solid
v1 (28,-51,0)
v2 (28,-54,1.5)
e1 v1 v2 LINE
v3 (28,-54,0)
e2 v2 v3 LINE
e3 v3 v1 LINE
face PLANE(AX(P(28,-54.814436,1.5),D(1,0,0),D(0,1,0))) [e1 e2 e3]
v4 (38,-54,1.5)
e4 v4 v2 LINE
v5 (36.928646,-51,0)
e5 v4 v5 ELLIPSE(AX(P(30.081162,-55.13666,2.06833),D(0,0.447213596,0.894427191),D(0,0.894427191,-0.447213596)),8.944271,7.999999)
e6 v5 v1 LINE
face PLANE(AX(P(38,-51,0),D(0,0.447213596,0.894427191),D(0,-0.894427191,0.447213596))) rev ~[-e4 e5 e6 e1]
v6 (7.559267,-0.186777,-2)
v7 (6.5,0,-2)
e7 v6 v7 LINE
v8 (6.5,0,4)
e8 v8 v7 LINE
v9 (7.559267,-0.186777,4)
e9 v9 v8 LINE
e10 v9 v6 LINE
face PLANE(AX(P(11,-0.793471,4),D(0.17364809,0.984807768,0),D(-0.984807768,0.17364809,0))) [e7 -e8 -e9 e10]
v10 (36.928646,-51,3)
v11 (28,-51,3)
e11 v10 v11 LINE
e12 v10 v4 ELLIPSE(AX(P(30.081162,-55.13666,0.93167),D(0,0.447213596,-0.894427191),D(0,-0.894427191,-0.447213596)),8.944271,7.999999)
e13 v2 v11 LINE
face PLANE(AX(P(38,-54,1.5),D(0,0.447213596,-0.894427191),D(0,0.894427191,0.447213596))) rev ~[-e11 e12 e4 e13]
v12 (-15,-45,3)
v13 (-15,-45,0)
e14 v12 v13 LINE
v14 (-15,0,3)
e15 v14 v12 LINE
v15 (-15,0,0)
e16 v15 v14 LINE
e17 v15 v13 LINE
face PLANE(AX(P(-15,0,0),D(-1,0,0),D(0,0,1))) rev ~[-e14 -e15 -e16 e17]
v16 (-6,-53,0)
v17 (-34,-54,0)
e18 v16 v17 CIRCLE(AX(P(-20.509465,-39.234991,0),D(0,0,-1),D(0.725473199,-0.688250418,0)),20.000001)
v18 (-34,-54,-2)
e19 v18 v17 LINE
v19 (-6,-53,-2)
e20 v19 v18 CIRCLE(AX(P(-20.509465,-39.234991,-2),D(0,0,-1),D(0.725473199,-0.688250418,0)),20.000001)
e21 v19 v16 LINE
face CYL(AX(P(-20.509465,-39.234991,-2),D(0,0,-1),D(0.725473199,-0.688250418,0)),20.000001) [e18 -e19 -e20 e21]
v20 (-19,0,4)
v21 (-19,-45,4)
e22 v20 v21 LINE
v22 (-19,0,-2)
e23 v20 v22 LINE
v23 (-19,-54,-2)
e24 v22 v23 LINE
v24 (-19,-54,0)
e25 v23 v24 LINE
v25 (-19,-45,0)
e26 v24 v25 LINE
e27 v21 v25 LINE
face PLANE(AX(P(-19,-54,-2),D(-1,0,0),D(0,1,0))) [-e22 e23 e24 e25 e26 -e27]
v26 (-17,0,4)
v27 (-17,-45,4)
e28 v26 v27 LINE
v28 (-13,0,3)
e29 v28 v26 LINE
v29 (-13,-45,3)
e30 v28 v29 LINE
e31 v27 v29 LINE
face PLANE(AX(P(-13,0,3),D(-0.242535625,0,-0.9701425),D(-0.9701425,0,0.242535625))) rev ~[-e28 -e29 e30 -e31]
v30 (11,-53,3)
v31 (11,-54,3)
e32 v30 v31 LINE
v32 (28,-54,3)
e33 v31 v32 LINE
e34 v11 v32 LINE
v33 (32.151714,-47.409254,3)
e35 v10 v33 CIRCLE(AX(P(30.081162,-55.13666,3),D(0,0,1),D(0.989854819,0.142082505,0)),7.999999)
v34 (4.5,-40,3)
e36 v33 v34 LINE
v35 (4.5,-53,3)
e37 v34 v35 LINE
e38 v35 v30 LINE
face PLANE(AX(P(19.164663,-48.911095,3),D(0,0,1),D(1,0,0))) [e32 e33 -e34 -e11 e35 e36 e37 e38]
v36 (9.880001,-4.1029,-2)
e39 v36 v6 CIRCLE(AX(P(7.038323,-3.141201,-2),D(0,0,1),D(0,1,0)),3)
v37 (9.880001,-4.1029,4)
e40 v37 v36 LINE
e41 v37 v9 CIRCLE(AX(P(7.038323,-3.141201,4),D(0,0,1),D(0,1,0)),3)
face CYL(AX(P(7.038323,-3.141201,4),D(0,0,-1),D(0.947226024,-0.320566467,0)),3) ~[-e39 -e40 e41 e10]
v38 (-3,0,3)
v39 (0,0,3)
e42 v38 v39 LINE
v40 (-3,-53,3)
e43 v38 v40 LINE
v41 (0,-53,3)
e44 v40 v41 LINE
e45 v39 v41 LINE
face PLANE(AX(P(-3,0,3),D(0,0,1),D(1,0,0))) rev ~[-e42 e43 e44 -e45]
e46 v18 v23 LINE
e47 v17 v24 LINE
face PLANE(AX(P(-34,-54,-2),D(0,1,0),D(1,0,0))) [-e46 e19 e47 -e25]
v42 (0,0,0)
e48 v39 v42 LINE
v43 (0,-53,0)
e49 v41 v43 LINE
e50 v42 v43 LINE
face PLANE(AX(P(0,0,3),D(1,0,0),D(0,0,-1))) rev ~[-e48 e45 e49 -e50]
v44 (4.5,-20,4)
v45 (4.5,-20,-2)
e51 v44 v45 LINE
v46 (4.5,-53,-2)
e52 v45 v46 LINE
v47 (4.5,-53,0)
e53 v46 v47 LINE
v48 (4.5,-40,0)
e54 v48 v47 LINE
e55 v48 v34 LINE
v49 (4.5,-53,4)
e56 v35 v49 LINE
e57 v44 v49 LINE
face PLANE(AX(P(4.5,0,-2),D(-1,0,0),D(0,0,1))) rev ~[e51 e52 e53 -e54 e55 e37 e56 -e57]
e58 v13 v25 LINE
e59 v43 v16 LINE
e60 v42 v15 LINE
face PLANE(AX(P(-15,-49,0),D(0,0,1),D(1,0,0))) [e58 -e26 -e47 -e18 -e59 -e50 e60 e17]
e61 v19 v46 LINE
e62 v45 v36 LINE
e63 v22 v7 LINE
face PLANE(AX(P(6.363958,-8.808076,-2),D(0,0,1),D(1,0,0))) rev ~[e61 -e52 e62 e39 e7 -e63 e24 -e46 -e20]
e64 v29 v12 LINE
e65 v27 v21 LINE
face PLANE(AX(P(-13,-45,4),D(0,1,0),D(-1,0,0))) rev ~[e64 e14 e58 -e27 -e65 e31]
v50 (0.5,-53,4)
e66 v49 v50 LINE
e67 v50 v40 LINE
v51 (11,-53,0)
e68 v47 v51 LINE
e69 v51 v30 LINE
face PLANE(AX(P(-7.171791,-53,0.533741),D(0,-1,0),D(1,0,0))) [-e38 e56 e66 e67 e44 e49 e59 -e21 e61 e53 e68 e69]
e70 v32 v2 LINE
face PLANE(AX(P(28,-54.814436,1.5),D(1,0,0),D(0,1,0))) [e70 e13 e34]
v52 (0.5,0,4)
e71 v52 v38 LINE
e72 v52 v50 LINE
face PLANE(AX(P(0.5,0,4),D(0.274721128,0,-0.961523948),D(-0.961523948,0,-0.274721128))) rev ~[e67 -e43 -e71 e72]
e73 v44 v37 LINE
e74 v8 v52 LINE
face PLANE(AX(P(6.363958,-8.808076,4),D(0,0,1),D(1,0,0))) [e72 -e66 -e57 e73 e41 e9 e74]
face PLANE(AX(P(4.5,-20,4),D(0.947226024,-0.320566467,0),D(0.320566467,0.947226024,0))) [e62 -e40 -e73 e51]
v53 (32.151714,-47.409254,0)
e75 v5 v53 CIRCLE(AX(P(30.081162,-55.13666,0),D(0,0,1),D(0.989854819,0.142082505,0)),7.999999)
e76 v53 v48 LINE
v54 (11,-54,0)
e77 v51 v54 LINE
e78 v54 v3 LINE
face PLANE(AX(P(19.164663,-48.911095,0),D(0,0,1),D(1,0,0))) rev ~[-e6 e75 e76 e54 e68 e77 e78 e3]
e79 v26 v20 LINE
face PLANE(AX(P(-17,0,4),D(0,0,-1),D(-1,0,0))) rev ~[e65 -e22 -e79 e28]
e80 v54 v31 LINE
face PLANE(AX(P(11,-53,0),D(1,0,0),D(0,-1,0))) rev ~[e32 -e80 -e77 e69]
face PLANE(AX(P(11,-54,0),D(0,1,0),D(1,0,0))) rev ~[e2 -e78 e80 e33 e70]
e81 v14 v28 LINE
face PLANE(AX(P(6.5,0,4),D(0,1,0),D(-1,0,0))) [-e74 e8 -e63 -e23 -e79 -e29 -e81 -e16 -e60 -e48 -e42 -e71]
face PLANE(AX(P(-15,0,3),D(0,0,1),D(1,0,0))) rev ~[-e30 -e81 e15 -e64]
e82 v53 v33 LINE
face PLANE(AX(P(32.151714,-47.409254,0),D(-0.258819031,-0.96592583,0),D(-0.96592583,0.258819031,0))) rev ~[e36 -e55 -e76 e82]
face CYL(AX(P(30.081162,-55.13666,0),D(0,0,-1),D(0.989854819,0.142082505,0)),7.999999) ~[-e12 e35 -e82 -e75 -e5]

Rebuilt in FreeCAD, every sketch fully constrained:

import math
import FreeCAD as App
import Part
import Sketcher

V = App.Vector
Q = App.Units.Quantity


def edges_at(feature, points):
    """Names of the edges that pass closest to the given points."""
    edges = feature.Shape.Edges
    near = lambda p: min(range(len(edges)), key=lambda i: edges[i].distToShape(Part.Vertex(*p))[0])
    return sorted({f"Edge{near(p) + 1}" for p in points})

doc = App.newDocument("Part")
body = doc.addObject("PartDesign::Body", "Body")

sketch1 = body.newObject("Sketcher::SketchObject", "Sketch")
sketch1.AttachmentSupport = (doc.getObject("XZ_Plane"), [""])
sketch1.MapMode = "FlatFace"
sketch1.addGeometry([
    Part.LineSegment(V(0, 3, 0), V(0, 0, 0)),
    Part.LineSegment(V(0, 0, 0), V(-15, 0, 0)),
    Part.LineSegment(V(-15, 0, 0), V(-15, 3, 0)),
    Part.LineSegment(V(-15, 3, 0), V(-13, 3, 0)),
    Part.LineSegment(V(-13, 3, 0), V(-17, 4, 0)),
    Part.LineSegment(V(-17, 4, 0), V(-19, 4, 0)),
    Part.LineSegment(V(-19, 4, 0), V(-19, -2, 0)),
    Part.LineSegment(V(-19, -2, 0), V(4.5, -2, 0)),
    Part.LineSegment(V(4.5, -2, 0), V(4.5, 4, 0)),
    Part.LineSegment(V(4.5, 4, 0), V(0.5, 4, 0)),
    Part.LineSegment(V(0.5, 4, 0), V(-3, 3, 0)),
    Part.LineSegment(V(-3, 3, 0), V(0, 3, 0)),
], False)
sketch1.addConstraint([
    Sketcher.Constraint("Coincident", 0, 2, 1, 1),
    Sketcher.Constraint("Coincident", 1, 2, 2, 1),
    Sketcher.Constraint("Coincident", 2, 2, 3, 1),
    Sketcher.Constraint("Coincident", 3, 2, 4, 1),
    Sketcher.Constraint("Coincident", 4, 2, 5, 1),
    Sketcher.Constraint("Coincident", 5, 2, 6, 1),
    Sketcher.Constraint("Coincident", 6, 2, 7, 1),
    Sketcher.Constraint("Coincident", 7, 2, 8, 1),
    Sketcher.Constraint("Coincident", 8, 2, 9, 1),
    Sketcher.Constraint("Coincident", 9, 2, 10, 1),
    Sketcher.Constraint("Coincident", 10, 2, 11, 1),
    Sketcher.Constraint("Coincident", 11, 2, 0, 1),
    Sketcher.Constraint("Vertical", 0),
    Sketcher.Constraint("Horizontal", 1),
    Sketcher.Constraint("Vertical", 2),
    Sketcher.Constraint("Horizontal", 3),
    Sketcher.Constraint("Horizontal", 5),
    Sketcher.Constraint("Vertical", 6),
    Sketcher.Constraint("Horizontal", 7),
    Sketcher.Constraint("Vertical", 8),
    Sketcher.Constraint("Horizontal", 9),
    Sketcher.Constraint("Horizontal", 11),
    Sketcher.Constraint("Coincident", 0, 2, -1, 1),
    Sketcher.Constraint("Horizontal", 5, 2, 8, 2),
    Sketcher.Constraint("Horizontal", 3, 2, 10, 2),
    Sketcher.Constraint("Equal", 3, 5),
    Sketcher.Constraint("Equal", 11, 0),
    Sketcher.Constraint("DistanceX", 1, 2, 1, 1, 15.0),
    Sketcher.Constraint("DistanceX", 3, 1, 3, 2, 2.0),
    Sketcher.Constraint("DistanceX", 9, 2, 9, 1, 4.0),
    Sketcher.Constraint("DistanceX", 11, 1, 11, 2, 3.0),
    Sketcher.Constraint("DistanceY", 6, 2, 6, 1, 6.0),
    Sketcher.Constraint("DistanceX", 7, 1, 7, 2, 23.5),
    Sketcher.Constraint("DistanceX", 4, 2, -1, 1, 17.0),
    Sketcher.Constraint("DistanceY", -1, 1, 4, 2, 4.0),
])
pad1 = body.newObject("PartDesign::Pad", "Pad")
pad1.Profile = sketch1
pad1.Length = 53

sketch2 = body.newObject("Sketcher::SketchObject", "Sketch001")
sketch2.AttachmentSupport = (doc.getObject("XY_Plane"), [""])
sketch2.MapMode = "FlatFace"
sketch2.addGeometry([
    Part.LineSegment(V(32.151714, -47.409254, 0), V(4.5, -40, 0)),
    Part.LineSegment(V(4.5, -40, 0), V(4.5, -53, 0)),
    Part.LineSegment(V(4.5, -53, 0), V(11, -53, 0)),
    Part.LineSegment(V(11, -53, 0), V(11, -54, 0)),
    Part.LineSegment(V(11, -54, 0), V(38, -54, 0)),
    Part.ArcOfCircle(Part.Circle(V(30.081162, -55.13666, 0), V(0, 0, 1), 7.999999), math.radians(8.16837), math.radians(75.000003)),
], False)
sketch2.addConstraint([
    Sketcher.Constraint("Coincident", 0, 2, 1, 1),
    Sketcher.Constraint("Coincident", 1, 2, 2, 1),
    Sketcher.Constraint("Coincident", 2, 2, 3, 1),
    Sketcher.Constraint("Coincident", 3, 2, 4, 1),
    Sketcher.Constraint("Coincident", 4, 2, 5, 1),
    Sketcher.Constraint("Tangent", 5, 2, 0, 1),
    Sketcher.Constraint("Vertical", 1),
    Sketcher.Constraint("Horizontal", 2),
    Sketcher.Constraint("Vertical", 3),
    Sketcher.Constraint("Horizontal", 4),
    Sketcher.Constraint("Radius", 5, 7.999999),
    Sketcher.Constraint("DistanceX", 4, 1, 4, 2, 27.0),
    Sketcher.Constraint("DistanceY", 1, 2, 1, 1, 13.0),
    Sketcher.Constraint("DistanceY", 3, 2, 3, 1, 1.0),
    Sketcher.Constraint("Angle", 0, Q("165.000001 deg")),
    Sketcher.Constraint("DistanceX", 2, 1, 2, 2, 6.5),
    Sketcher.Constraint("DistanceY", 0, 2, -1, 1, 40.0),
    Sketcher.Constraint("DistanceX", -1, 1, 2, 2, 11.0),
])
pad2 = body.newObject("PartDesign::Pad", "Pad001")
pad2.Profile = sketch2
pad2.Length = 3

sketch3 = body.newObject("Sketcher::SketchObject", "Sketch002")
sketch3.AttachmentSupport = (doc.getObject("YZ_Plane"), [""])
sketch3.MapMode = "FlatFace"
sketch3.AttachmentOffset = App.Placement(V(0, 0, 38), App.Rotation())
sketch3.addGeometry([
    Part.LineSegment(V(-59, 3, 0), V(-59, 0, 0)),
    Part.LineSegment(V(-59, 0, 0), V(-51, 0, 0)),
    Part.LineSegment(V(-51, 0, 0), V(-54, 1.5, 0)),
    Part.LineSegment(V(-54, 1.5, 0), V(-51, 3, 0)),
    Part.LineSegment(V(-51, 3, 0), V(-59, 3, 0)),
], False)
sketch3.addConstraint([
    Sketcher.Constraint("Coincident", 0, 2, 1, 1),
    Sketcher.Constraint("Coincident", 1, 2, 2, 1),
    Sketcher.Constraint("Coincident", 2, 2, 3, 1),
    Sketcher.Constraint("Coincident", 3, 2, 4, 1),
    Sketcher.Constraint("Coincident", 4, 2, 0, 1),
    Sketcher.Constraint("Vertical", 0),
    Sketcher.Constraint("Horizontal", 1),
    Sketcher.Constraint("Horizontal", 4),
    Sketcher.Constraint("PointOnObject", 0, 2, -1),
    Sketcher.Constraint("Vertical", 1, 2, 3, 2),
    Sketcher.Constraint("Equal", 2, 3),
    Sketcher.Constraint("DistanceX", 1, 1, 1, 2, 8.0),
    Sketcher.Constraint("DistanceY", 0, 2, 0, 1, 3.0),
    Sketcher.Constraint("DistanceX", 0, 2, -1, 1, 59.0),
    Sketcher.Constraint("DistanceX", 2, 2, -1, 1, 54.0),
])
pocket1 = body.newObject("PartDesign::Pocket", "Pocket")
pocket1.Profile = sketch3
pocket1.Length = 10

sketch4 = body.newObject("Sketcher::SketchObject", "Sketch003")
sketch4.AttachmentSupport = (doc.getObject("XY_Plane"), [""])
sketch4.MapMode = "FlatFace"
sketch4.AttachmentOffset = App.Placement(V(0, 0, -2), App.Rotation())
sketch4.addGeometry([
    Part.LineSegment(V(-19, -54, 0), V(-19, -53, 0)),
    Part.LineSegment(V(-19, -53, 0), V(-6, -53, 0)),
    Part.ArcOfCircle(Part.Circle(V(-20.509465, -39.234991, 0), V(0, 0, 1), 20.000001), math.radians(-132.41741), math.radians(-43.491773)),
    Part.LineSegment(V(-34, -54, 0), V(-19, -54, 0)),
], False)
sketch4.addConstraint([
    Sketcher.Constraint("Coincident", 0, 2, 1, 1),
    Sketcher.Constraint("Coincident", 1, 2, 2, 2),
    Sketcher.Constraint("Coincident", 2, 1, 3, 1),
    Sketcher.Constraint("Coincident", 3, 2, 0, 1),
    Sketcher.Constraint("Vertical", 0),
    Sketcher.Constraint("Horizontal", 1),
    Sketcher.Constraint("Horizontal", 3),
    Sketcher.Constraint("Radius", 2, 20.000001),
    Sketcher.Constraint("DistanceX", 1, 1, 1, 2, 13.0),
    Sketcher.Constraint("DistanceX", 3, 1, 3, 2, 15.0),
    Sketcher.Constraint("DistanceY", 0, 1, 0, 2, 1.0),
    Sketcher.Constraint("DistanceX", 0, 2, -1, 1, 19.0),
    Sketcher.Constraint("DistanceY", 0, 2, -1, 1, 53.0),
])
pad3 = body.newObject("PartDesign::Pad", "Pad002")
pad3.Profile = sketch4
pad3.Length = 2

sketch5 = body.newObject("Sketcher::SketchObject", "Sketch004")
sketch5.AttachmentSupport = (doc.getObject("XY_Plane"), [""])
sketch5.MapMode = "FlatFace"
sketch5.AttachmentOffset = App.Placement(V(0, 0, 4), App.Rotation())
sketch5.addGeometry([
    Part.LineSegment(V(-13, -53, 0), V(-13, -45, 0)),
    Part.LineSegment(V(-13, -45, 0), V(-19, -45, 0)),
    Part.LineSegment(V(-19, -45, 0), V(-19, -53, 0)),
    Part.LineSegment(V(-19, -53, 0), V(-13, -53, 0)),
], False)
sketch5.addConstraint([
    Sketcher.Constraint("Coincident", 0, 2, 1, 1),
    Sketcher.Constraint("Coincident", 1, 2, 2, 1),
    Sketcher.Constraint("Coincident", 2, 2, 3, 1),
    Sketcher.Constraint("Coincident", 3, 2, 0, 1),
    Sketcher.Constraint("Vertical", 0),
    Sketcher.Constraint("Horizontal", 1),
    Sketcher.Constraint("Vertical", 2),
    Sketcher.Constraint("Horizontal", 3),
    Sketcher.Constraint("DistanceX", 1, 2, 1, 1, 6.0),
    Sketcher.Constraint("DistanceY", 0, 1, 0, 2, 8.0),
    Sketcher.Constraint("DistanceX", 0, 2, -1, 1, 13.0),
    Sketcher.Constraint("DistanceY", 0, 2, -1, 1, 45.0),
])
pocket2 = body.newObject("PartDesign::Pocket", "Pocket001")
pocket2.Profile = sketch5
pocket2.Length = 4

sketch6 = body.newObject("Sketcher::SketchObject", "Sketch005")
sketch6.AttachmentSupport = (doc.getObject("XY_Plane"), [""])
sketch6.MapMode = "FlatFace"
sketch6.AttachmentOffset = App.Placement(V(0, 0, 4), App.Rotation())
sketch6.addGeometry([
    Part.LineSegment(V(4.5, 0, 0), V(4.5, -20, 0)),
    Part.LineSegment(V(4.5, -20, 0), V(11, -0.793471, 0)),
    Part.LineSegment(V(11, -0.793471, 0), V(6.5, 0, 0)),
    Part.LineSegment(V(6.5, 0, 0), V(4.5, 0, 0)),
], False)
sketch6.addConstraint([
    Sketcher.Constraint("Coincident", 0, 2, 1, 1),
    Sketcher.Constraint("Coincident", 1, 2, 2, 1),
    Sketcher.Constraint("Coincident", 2, 2, 3, 1),
    Sketcher.Constraint("Coincident", 3, 2, 0, 1),
    Sketcher.Constraint("Vertical", 0),
    Sketcher.Constraint("Horizontal", 3),
    Sketcher.Constraint("PointOnObject", 2, 2, -1),
    Sketcher.Constraint("DistanceX", 3, 2, 3, 1, 2.0),
    Sketcher.Constraint("DistanceY", 0, 2, 0, 1, 20.0),
    Sketcher.Constraint("Angle", 2, Q("170.000005 deg")),
    Sketcher.Constraint("DistanceX", -1, 1, 1, 2, 11.0),
    Sketcher.Constraint("DistanceX", -1, 1, 0, 2, 4.5),
])
pad4 = body.newObject("PartDesign::Pad", "Pad003")
pad4.Profile = sketch6
pad4.Length = 6
pad4.Reversed = True
doc.recompute()

fillet = body.newObject("PartDesign::Fillet", "Fillet")
fillet.Base = (pad4, edges_at(pad4, [(11, -0.793, 1)]))
fillet.Radius = 3

doc.recompute()
